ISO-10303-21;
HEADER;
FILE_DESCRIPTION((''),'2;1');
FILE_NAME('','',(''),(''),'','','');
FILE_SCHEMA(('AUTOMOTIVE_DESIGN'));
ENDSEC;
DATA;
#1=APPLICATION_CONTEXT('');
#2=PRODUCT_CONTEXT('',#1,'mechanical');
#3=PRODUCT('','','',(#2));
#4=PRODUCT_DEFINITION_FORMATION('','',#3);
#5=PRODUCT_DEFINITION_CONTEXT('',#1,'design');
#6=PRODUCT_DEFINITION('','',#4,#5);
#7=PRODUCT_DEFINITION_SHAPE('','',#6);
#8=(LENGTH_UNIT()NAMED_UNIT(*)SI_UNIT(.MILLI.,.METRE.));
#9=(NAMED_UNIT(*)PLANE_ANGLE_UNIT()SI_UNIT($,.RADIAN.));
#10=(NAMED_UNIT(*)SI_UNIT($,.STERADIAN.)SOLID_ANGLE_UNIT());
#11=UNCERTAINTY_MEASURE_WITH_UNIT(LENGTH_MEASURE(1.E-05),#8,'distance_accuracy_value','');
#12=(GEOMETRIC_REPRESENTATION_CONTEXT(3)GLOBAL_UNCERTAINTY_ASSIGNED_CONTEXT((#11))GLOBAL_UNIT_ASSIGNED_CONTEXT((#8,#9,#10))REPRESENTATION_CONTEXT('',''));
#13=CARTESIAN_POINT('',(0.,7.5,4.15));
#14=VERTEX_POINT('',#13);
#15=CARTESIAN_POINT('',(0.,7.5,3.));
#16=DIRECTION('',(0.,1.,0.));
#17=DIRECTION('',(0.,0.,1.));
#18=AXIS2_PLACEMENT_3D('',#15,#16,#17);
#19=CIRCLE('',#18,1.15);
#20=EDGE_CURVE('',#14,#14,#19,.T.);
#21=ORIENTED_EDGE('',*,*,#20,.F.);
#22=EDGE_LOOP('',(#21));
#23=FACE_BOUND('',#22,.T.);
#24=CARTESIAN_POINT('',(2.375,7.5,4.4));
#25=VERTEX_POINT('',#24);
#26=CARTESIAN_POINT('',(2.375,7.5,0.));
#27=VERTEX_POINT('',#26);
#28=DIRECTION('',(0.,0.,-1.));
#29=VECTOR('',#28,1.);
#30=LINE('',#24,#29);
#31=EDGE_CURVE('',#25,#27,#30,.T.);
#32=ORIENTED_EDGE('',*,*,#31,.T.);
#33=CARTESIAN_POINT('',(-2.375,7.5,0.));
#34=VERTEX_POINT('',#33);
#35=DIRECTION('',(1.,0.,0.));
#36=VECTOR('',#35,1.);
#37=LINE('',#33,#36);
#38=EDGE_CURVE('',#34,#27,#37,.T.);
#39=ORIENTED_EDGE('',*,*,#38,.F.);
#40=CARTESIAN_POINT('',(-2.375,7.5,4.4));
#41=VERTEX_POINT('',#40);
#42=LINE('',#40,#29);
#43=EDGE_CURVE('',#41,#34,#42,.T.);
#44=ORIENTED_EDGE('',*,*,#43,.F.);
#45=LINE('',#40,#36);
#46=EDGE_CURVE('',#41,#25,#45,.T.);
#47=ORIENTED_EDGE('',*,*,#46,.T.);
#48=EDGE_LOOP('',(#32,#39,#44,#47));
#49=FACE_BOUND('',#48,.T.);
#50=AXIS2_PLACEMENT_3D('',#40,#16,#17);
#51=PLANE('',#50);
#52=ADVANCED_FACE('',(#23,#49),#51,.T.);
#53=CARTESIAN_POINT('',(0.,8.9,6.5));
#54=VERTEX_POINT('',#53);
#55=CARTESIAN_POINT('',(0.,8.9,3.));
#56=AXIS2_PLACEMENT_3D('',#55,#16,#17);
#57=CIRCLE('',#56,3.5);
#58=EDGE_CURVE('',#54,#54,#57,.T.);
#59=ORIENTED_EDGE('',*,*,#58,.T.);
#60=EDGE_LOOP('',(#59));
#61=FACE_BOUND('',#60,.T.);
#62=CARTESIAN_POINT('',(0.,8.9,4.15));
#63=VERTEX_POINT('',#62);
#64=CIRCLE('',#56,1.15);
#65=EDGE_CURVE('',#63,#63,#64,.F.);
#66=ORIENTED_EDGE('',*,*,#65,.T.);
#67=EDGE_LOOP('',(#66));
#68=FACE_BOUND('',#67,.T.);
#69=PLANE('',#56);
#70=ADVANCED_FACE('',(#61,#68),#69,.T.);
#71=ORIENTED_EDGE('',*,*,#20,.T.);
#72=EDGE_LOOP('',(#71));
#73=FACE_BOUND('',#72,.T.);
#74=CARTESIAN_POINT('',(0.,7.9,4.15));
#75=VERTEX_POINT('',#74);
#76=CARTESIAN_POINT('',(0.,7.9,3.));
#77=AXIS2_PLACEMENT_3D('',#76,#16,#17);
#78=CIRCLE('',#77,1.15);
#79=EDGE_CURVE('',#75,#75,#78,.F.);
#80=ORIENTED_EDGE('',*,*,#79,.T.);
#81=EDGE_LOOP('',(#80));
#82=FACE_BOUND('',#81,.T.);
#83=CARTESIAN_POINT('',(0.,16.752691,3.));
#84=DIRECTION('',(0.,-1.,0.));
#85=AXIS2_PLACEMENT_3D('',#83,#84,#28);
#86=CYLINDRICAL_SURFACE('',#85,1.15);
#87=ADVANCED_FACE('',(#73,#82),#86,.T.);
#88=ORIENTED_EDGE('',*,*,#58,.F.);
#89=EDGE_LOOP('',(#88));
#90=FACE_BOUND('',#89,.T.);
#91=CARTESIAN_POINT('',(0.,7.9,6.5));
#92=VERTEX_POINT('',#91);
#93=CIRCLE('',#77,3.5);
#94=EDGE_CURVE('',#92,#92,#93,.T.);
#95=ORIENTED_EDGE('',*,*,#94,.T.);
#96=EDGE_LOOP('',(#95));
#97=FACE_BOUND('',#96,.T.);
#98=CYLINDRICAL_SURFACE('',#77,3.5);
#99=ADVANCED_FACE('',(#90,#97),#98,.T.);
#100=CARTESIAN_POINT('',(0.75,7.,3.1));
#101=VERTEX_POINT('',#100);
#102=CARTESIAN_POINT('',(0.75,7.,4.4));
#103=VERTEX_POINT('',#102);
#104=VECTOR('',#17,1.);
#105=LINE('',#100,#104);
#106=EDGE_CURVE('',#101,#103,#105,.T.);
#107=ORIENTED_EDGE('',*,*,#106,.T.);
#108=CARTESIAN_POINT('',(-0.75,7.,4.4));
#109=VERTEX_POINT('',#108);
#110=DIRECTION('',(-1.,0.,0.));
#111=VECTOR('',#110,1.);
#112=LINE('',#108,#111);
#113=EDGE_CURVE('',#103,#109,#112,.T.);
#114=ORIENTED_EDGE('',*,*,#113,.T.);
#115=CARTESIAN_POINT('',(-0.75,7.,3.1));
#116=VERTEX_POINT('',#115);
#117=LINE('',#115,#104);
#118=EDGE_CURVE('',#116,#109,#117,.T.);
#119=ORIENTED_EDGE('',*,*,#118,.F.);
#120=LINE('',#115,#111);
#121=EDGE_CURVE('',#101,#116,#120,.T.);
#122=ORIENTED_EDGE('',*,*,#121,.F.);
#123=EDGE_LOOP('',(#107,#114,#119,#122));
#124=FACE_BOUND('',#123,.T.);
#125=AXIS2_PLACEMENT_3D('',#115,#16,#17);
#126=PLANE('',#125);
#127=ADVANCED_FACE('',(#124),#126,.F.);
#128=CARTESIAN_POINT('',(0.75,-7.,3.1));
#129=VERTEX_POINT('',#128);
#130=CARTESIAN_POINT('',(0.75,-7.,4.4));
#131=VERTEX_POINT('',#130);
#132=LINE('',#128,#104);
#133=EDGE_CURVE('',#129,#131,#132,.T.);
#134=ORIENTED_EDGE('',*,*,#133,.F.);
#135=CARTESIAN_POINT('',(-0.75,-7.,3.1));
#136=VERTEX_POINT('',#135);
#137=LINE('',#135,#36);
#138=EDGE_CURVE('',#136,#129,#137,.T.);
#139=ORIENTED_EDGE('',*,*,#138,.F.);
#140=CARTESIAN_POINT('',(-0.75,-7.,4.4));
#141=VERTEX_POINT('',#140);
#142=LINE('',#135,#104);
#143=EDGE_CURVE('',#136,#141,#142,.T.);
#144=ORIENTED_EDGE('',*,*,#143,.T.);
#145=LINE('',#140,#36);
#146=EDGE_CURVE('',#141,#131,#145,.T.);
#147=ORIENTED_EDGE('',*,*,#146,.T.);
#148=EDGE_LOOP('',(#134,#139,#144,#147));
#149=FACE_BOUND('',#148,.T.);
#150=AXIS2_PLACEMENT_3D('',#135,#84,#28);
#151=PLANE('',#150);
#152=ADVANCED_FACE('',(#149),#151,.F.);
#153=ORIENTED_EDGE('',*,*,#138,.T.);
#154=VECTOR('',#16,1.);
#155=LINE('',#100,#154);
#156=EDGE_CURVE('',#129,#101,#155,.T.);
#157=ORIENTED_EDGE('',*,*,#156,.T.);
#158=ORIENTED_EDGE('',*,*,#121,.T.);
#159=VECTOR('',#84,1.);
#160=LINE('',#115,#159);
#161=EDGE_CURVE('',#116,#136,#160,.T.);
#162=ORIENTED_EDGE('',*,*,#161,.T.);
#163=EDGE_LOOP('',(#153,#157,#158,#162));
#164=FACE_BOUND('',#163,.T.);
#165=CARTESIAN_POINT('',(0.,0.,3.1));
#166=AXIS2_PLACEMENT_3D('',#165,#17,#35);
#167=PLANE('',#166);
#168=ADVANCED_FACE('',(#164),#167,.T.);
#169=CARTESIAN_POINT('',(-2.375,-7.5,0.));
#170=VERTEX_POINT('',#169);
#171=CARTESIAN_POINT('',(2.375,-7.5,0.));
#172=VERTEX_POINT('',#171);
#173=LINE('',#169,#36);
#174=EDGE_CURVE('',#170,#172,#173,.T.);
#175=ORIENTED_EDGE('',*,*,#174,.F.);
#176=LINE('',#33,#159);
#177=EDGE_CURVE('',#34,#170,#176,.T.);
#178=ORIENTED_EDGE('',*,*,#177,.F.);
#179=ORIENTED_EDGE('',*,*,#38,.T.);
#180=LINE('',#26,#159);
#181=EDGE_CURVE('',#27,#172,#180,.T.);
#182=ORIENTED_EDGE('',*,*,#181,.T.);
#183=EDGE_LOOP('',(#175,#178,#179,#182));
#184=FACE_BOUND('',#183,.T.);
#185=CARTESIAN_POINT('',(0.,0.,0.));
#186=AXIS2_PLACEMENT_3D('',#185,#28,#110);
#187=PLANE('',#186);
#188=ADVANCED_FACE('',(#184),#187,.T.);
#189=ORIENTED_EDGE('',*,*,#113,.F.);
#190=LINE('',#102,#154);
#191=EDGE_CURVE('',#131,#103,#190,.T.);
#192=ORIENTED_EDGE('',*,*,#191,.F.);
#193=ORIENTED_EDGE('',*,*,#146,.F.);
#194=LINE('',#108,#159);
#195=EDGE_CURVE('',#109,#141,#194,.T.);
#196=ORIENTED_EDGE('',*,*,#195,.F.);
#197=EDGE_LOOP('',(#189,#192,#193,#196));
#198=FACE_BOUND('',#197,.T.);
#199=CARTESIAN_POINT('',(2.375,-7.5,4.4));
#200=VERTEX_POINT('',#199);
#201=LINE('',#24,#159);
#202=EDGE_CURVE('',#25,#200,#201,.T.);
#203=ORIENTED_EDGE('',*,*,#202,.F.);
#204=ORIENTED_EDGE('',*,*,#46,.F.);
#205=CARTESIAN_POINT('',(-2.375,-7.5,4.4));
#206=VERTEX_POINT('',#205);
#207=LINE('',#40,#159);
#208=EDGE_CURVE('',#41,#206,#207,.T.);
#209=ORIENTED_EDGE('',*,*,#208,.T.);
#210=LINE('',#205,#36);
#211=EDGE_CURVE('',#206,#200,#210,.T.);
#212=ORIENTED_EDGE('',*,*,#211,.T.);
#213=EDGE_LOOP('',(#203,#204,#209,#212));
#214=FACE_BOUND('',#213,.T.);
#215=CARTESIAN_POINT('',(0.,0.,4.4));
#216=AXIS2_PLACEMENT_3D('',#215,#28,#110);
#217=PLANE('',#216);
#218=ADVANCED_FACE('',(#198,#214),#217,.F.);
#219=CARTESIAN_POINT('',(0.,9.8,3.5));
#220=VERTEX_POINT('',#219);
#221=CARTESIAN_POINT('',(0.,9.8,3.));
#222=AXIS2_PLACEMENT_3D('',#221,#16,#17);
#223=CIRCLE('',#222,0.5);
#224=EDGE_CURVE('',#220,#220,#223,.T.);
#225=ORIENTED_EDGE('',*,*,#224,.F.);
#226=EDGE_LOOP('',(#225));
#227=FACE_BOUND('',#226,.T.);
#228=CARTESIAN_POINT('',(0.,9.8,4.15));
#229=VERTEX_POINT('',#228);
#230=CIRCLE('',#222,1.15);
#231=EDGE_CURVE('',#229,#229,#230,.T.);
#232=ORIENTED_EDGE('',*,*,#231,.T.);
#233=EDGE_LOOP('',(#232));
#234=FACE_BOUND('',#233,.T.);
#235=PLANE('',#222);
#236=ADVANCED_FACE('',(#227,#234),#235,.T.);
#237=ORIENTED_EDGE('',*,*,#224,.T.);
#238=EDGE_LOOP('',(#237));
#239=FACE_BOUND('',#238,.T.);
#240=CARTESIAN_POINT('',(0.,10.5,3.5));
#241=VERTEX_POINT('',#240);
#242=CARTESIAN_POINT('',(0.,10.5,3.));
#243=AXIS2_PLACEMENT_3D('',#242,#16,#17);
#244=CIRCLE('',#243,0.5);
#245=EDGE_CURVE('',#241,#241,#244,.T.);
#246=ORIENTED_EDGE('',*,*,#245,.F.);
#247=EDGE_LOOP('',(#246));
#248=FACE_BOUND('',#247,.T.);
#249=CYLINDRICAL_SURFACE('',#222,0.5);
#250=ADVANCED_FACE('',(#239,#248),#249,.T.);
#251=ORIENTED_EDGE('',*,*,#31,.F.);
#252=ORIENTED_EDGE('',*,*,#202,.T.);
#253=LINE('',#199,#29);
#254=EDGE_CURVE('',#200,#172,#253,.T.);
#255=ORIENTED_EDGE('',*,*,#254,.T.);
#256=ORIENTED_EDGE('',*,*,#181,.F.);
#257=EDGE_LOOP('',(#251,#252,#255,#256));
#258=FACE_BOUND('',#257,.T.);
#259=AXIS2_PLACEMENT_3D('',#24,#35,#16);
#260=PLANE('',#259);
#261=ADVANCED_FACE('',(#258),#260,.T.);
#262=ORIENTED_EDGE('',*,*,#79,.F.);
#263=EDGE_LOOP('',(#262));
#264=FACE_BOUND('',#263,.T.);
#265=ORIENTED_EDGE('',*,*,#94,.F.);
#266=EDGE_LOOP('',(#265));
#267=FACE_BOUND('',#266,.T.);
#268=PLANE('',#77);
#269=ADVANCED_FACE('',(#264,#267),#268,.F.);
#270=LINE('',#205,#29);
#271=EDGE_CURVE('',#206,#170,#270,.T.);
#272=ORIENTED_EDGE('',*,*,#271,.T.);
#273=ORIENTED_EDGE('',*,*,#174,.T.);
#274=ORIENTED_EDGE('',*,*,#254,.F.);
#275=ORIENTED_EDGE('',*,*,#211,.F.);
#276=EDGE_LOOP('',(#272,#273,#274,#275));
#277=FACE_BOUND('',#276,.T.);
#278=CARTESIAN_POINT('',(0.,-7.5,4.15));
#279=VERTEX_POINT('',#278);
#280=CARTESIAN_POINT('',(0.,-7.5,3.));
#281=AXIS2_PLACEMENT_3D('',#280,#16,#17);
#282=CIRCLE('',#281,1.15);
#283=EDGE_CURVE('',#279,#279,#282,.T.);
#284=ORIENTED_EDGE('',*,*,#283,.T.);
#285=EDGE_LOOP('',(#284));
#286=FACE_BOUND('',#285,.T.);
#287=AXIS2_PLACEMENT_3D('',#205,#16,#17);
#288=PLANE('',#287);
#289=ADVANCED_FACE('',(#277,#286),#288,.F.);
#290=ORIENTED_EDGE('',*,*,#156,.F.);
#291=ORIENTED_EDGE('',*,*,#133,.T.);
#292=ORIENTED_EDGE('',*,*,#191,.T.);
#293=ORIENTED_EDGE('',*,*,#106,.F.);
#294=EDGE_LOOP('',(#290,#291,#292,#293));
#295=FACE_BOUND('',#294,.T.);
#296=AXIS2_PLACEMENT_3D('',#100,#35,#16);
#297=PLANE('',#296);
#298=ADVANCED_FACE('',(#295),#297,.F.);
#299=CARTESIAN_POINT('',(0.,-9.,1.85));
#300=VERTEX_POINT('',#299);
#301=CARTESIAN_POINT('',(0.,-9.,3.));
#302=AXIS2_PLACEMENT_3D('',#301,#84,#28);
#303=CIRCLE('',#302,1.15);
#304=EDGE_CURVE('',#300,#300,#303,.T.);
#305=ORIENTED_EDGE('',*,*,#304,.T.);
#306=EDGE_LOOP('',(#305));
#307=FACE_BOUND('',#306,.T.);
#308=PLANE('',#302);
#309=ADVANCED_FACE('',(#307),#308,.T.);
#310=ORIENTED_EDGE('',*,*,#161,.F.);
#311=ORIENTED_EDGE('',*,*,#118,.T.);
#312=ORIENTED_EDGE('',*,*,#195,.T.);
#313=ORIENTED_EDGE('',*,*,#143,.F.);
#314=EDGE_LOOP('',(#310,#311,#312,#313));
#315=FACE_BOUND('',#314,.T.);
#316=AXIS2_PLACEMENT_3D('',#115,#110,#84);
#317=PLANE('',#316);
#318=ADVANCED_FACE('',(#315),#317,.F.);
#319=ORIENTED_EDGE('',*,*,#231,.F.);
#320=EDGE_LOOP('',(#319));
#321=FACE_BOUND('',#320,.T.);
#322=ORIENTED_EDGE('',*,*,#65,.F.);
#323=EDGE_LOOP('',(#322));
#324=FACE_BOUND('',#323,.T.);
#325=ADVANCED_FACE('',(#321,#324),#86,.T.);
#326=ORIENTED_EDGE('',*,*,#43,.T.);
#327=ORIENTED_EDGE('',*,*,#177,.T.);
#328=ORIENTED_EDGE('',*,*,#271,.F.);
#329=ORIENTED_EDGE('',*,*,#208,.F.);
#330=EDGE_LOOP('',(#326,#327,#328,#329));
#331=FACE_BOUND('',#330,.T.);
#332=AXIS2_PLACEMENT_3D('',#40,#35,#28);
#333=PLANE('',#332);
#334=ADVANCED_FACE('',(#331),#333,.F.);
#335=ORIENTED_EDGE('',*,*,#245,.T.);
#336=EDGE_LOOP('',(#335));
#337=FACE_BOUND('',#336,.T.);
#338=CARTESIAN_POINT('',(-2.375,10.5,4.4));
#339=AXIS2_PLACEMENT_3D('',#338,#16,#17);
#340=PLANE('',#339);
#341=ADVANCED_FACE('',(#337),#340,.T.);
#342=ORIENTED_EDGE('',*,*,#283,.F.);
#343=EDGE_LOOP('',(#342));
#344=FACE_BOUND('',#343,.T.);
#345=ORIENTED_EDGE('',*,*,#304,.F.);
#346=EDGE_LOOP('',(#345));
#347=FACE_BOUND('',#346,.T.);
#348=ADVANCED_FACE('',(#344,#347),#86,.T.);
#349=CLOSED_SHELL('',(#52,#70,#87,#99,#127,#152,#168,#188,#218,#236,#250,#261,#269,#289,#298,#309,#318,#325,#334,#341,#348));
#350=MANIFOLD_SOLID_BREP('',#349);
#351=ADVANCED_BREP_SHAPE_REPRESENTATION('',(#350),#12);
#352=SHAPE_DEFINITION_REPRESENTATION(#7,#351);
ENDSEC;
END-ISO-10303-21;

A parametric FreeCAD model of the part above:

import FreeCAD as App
import Part
import Sketcher
from FreeCAD import Vector
Q = App.Units.Quantity


def add_polygon(sketch, points):
    """Adds a closed chain of lines whose ends are joined by coincident constraints."""
    first, n = sketch.GeometryCount, len(points)
    for a, b in zip(points, points[1:] + points[:1]):
        sketch.addGeometry(Part.LineSegment(App.Vector(*a, 0), App.Vector(*b, 0)), False)
    for i in range(n):
        sketch.addConstraint(Sketcher.Constraint("Coincident", first + i, 2, first + (i + 1) % n, 1))

doc = App.newDocument("Part")
body = doc.addObject("PartDesign::Body", "Body")

# Sketch on XY plane
sketch1 = body.newObject("Sketcher::SketchObject", "Sketch")
sketch1.AttachmentSupport = (doc.getObject("XY_Plane"), [""])
sketch1.MapMode = "FlatFace"
add_polygon(sketch1, [(-2.4, 7.5), (-2.4, -7.5), (2.4, -7.5), (2.4, 7.5)])  # lines 0-3
sketch1.addConstraint([
    Sketcher.Constraint("Vertical", 0),
    Sketcher.Constraint("Horizontal", 1),
    Sketcher.Constraint("Vertical", 2),
    Sketcher.Constraint("Horizontal", 3),
    Sketcher.Constraint("Symmetric", 0, 2, 2, 2, -1, 1),
    Sketcher.Constraint("DistanceY", 0, 2, 0, 1, Q("15 mm")),
    Sketcher.Constraint("DistanceX", 1, 1, 1, 2, Q("4.75 mm")),
])
pad1 = body.newObject("PartDesign::Pad", "Pad")
pad1.Profile = sketch1
pad1.Length = 4.4

# Sketch on XZ plane
sketch2 = body.newObject("Sketcher::SketchObject", "Sketch001")
sketch2.AttachmentSupport = (doc.getObject("XZ_Plane"), [""])
sketch2.MapMode = "FlatFace"
sketch2.AttachmentOffset = App.Placement(Vector(0, 0, 7.5), App.Rotation())
sketch2.addGeometry(Part.Circle(Vector(0, 3, 0), Vector(0, 0, 1), 1.1), False)
sketch2.addConstraint([
    Sketcher.Constraint("PointOnObject", 0, 3, -2),
    Sketcher.Constraint("Diameter", 0, Q("2.3 mm")),
    Sketcher.Constraint("DistanceY", -1, 1, 0, 3, Q("3 mm")),
])
pad2 = body.newObject("PartDesign::Pad", "Pad001")
pad2.Profile = sketch2
pad2.Type = "TwoLengths"
pad2.Length = 1.5
pad2.Length2 = 18

# Sketch on XZ plane
sketch3 = body.newObject("Sketcher::SketchObject", "Sketch002")
sketch3.AttachmentSupport = (doc.getObject("XZ_Plane"), [""])
sketch3.MapMode = "FlatFace"
sketch3.AttachmentOffset = App.Placement(Vector(0, 0, -8.9), App.Rotation())
sketch3.addGeometry(Part.Circle(Vector(0, 3, 0), Vector(0, 0, 1), 3.5), False)
sketch3.addConstraint([
    Sketcher.Constraint("PointOnObject", 0, 3, -2),
    Sketcher.Constraint("Diameter", 0, Q("7 mm")),
    Sketcher.Constraint("DistanceY", -1, 1, 0, 3, Q("3 mm")),
])
pad3 = body.newObject("PartDesign::Pad", "Pad002")
pad3.Profile = sketch3
pad3.Length = 1

# Sketch on XZ plane
sketch4 = body.newObject("Sketcher::SketchObject", "Sketch003")
sketch4.AttachmentSupport = (doc.getObject("XZ_Plane"), [""])
sketch4.MapMode = "FlatFace"
sketch4.AttachmentOffset = App.Placement(Vector(0, 0, -10.5), App.Rotation())
sketch4.addGeometry([
    Part.Circle(Vector(0, 3, 0), Vector(0, 0, 1), 1.1),
    Part.Circle(Vector(0, 3, 0), Vector(0, 0, 1), 0.5),
], False)
sketch4.addConstraint([
    Sketcher.Constraint("Coincident", 1, 3, 0, 3),
    Sketcher.Constraint("PointOnObject", 0, 3, -2),
    Sketcher.Constraint("Diameter", 1, Q("1 mm")),
    Sketcher.Constraint("Diameter", 0, Q("2.3 mm")),
    Sketcher.Constraint("DistanceY", -1, 1, 0, 3, Q("3 mm")),
])
pocket1 = body.newObject("PartDesign::Pocket", "Pocket")
pocket1.Profile = sketch4
pocket1.Length = 0.7
pocket1.Reversed = True

# Sketch on XY plane
sketch5 = body.newObject("Sketcher::SketchObject", "Sketch004")
sketch5.AttachmentSupport = (doc.getObject("XY_Plane"), [""])
sketch5.MapMode = "FlatFace"
sketch5.AttachmentOffset = App.Placement(Vector(0, 0, 4.4), App.Rotation())
add_polygon(sketch5, [(-0.8, 7), (-0.8, -7), (0.8, -7), (0.8, 7)])  # lines 0-3
sketch5.addConstraint([
    Sketcher.Constraint("Vertical", 0),
    Sketcher.Constraint("Horizontal", 1),
    Sketcher.Constraint("Vertical", 2),
    Sketcher.Constraint("Horizontal", 3),
    Sketcher.Constraint("Symmetric", 0, 2, 2, 2, -1, 1),
    Sketcher.Constraint("DistanceY", 0, 2, 0, 1, Q("14 mm")),
    Sketcher.Constraint("DistanceX", 1, 1, 1, 2, Q("1.5 mm")),
])
pocket2 = body.newObject("PartDesign::Pocket", "Pocket001")
pocket2.Profile = sketch5
pocket2.Length = 1.3

doc.recompute()
